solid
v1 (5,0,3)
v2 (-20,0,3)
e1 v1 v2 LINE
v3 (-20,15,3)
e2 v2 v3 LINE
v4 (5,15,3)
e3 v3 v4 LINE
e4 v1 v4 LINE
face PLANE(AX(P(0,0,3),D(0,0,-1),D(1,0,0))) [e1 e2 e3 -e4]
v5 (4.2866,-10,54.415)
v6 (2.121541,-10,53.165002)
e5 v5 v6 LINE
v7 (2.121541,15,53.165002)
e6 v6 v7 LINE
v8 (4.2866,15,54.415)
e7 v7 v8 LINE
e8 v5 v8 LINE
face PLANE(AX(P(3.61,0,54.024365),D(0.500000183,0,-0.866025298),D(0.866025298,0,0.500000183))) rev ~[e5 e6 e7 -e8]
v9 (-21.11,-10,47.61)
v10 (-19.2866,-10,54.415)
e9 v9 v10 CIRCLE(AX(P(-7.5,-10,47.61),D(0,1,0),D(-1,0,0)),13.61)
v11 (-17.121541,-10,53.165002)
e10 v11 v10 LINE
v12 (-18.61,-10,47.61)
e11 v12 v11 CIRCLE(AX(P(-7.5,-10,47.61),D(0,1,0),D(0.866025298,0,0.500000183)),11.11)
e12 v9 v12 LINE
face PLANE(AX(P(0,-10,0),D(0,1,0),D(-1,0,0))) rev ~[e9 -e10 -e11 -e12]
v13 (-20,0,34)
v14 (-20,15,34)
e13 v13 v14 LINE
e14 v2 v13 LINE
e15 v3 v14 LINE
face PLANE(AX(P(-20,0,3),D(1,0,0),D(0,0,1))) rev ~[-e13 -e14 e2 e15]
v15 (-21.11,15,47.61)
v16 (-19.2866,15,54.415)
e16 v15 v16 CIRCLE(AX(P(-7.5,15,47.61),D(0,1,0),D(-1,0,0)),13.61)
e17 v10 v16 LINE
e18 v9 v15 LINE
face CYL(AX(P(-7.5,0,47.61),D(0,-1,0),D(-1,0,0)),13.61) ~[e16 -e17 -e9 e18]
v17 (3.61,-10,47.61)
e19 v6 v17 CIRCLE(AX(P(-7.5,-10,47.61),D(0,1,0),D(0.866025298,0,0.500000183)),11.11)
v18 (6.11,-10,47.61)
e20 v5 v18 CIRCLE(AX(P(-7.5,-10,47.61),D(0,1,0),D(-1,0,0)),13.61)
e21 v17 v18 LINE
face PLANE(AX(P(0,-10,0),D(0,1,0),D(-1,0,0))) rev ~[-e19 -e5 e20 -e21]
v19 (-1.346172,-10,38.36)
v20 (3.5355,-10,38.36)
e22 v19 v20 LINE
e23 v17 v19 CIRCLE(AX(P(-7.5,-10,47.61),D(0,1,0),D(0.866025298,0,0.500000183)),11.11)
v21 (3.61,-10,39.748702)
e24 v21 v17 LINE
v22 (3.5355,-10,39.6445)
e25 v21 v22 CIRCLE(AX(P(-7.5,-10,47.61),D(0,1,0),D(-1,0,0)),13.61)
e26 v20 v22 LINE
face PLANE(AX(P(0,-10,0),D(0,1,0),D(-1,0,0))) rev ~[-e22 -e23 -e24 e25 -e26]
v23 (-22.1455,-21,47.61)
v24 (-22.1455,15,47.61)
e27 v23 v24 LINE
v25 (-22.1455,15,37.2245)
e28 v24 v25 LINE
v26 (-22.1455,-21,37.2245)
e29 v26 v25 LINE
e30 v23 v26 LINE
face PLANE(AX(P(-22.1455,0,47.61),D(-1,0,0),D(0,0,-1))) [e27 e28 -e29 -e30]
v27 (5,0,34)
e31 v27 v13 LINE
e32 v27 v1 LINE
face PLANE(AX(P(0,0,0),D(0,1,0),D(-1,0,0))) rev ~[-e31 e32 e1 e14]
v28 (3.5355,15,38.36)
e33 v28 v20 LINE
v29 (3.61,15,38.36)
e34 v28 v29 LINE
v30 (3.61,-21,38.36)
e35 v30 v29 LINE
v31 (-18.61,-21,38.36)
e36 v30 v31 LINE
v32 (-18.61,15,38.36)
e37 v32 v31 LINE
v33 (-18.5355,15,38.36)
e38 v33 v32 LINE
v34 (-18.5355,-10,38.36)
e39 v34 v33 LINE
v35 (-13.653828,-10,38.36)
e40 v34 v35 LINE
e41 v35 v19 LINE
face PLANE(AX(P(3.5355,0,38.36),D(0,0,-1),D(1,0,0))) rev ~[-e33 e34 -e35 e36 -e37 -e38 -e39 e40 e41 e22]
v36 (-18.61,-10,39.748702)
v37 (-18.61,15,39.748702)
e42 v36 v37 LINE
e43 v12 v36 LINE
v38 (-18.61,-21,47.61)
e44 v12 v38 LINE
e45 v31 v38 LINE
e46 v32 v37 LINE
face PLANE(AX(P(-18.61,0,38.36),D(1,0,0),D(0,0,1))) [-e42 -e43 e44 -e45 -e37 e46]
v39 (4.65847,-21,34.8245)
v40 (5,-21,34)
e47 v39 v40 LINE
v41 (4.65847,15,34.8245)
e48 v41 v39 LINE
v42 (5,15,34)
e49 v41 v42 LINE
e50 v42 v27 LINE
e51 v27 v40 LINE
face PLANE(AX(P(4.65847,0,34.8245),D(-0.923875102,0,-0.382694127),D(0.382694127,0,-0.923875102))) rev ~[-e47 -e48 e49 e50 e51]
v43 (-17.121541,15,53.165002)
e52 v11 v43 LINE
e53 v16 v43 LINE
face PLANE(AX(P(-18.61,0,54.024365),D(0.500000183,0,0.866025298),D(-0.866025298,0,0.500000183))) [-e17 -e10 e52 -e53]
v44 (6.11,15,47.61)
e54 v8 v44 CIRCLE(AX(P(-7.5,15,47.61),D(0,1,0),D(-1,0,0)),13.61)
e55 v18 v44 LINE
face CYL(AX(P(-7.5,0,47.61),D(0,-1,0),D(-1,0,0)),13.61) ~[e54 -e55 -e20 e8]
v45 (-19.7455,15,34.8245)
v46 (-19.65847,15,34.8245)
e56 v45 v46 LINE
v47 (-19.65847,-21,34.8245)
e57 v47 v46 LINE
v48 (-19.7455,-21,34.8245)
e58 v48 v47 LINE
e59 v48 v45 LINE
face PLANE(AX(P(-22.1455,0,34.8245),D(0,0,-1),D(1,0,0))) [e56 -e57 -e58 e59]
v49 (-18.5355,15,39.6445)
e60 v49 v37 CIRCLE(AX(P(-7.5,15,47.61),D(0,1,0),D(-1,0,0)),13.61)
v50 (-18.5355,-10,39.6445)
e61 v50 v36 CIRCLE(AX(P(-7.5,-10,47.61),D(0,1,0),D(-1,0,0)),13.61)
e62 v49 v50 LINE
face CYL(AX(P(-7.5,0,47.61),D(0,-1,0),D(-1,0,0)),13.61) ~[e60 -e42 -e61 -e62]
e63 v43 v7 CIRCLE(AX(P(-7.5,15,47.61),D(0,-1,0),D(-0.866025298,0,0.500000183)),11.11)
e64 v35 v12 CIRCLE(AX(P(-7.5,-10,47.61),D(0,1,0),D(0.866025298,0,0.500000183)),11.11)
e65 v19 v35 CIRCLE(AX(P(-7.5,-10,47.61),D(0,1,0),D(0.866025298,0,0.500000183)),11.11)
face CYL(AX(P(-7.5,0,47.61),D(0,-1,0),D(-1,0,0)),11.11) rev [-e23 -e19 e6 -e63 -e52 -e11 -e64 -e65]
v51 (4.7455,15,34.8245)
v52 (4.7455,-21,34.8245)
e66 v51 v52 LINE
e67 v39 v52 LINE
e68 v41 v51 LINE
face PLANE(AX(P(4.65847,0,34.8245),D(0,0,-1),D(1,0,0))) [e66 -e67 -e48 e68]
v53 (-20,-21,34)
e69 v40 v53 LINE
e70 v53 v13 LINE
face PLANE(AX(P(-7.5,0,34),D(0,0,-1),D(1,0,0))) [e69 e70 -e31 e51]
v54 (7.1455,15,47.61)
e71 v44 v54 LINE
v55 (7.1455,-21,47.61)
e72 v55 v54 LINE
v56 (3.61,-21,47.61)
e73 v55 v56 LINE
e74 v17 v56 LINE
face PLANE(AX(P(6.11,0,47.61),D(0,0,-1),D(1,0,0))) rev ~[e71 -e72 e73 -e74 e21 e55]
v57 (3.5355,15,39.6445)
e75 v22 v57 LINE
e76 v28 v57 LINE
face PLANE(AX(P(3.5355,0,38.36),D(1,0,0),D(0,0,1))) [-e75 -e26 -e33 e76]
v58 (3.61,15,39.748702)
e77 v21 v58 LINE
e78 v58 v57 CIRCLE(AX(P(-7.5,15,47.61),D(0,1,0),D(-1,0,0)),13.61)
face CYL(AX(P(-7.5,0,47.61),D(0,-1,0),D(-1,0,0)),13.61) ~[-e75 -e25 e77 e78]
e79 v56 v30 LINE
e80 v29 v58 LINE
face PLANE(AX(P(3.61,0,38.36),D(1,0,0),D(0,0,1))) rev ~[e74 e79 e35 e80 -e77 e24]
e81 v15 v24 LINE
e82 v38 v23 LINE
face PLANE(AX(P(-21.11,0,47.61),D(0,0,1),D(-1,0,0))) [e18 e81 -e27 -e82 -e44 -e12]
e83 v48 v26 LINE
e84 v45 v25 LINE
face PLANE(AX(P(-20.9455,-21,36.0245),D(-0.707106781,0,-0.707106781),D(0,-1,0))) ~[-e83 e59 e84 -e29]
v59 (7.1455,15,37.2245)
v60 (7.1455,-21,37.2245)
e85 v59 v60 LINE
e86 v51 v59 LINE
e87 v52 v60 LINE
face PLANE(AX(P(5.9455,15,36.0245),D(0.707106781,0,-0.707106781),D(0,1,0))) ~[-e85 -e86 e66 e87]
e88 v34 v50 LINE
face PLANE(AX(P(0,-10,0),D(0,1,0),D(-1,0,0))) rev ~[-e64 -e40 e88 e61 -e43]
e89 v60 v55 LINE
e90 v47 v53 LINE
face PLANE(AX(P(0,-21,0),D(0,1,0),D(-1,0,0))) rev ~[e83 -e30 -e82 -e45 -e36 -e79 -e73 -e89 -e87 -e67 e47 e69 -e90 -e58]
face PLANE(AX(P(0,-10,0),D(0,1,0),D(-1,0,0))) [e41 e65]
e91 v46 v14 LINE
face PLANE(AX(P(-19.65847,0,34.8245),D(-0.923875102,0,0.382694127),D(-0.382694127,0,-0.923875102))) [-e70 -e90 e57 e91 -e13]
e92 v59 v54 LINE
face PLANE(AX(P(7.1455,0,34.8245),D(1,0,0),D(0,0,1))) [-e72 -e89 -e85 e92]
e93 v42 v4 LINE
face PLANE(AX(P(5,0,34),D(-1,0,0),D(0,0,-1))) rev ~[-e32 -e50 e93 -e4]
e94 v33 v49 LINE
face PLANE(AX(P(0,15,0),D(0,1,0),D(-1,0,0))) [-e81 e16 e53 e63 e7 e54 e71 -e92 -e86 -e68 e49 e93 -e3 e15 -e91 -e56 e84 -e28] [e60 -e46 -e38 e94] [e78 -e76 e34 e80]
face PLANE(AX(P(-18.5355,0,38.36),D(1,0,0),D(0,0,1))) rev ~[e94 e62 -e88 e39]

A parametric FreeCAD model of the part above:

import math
import FreeCAD as App
import Part
import Sketcher
from FreeCAD import Vector
Q = App.Units.Quantity


def edges_at(feature, points):
    """Names of the edges that pass closest to the given points."""
    edges = feature.Shape.Edges
    near = lambda p: min(range(len(edges)), key=lambda i: edges[i].distToShape(Part.Vertex(*p))[0])
    return sorted({f"Edge{near(p) + 1}" for p in points})

doc = App.newDocument("Part")
body = doc.addObject("PartDesign::Body", "Body")

sketch1 = body.newObject("Sketcher::SketchObject", "Sketch")
sketch1.AttachmentSupport = (doc.getObject("XZ_Plane"), [""])
sketch1.MapMode = "FlatFace"
sketch1.addGeometry(Part.LineSegment(Vector(-20, 34, 0), Vector(-19.66, 34.82, 0)), False)
sketch1.addGeometry(Part.LineSegment(Vector(-19.66, 34.82, 0), Vector(-22.15, 34.82, 0)), False)
sketch1.addGeometry(Part.LineSegment(Vector(-22.15, 34.82, 0), Vector(-22.15, 47.61, 0)), False)
sketch1.addGeometry(Part.LineSegment(Vector(-22.15, 47.61, 0), Vector(-21.11, 47.61, 0)), False)
sketch1.addGeometry(Part.ArcOfCircle(Part.Circle(Vector(-7.5, 47.61, 0), Vector(0, 0, 1), 13.61), math.radians(150), math.radians(180)), False)
sketch1.addGeometry(Part.LineSegment(Vector(-19.29, 54.41, 0), Vector(-17.12, 53.17, 0)), False)
sketch1.addGeometry(Part.ArcOfCircle(Part.Circle(Vector(-7.5, 47.61, 0), Vector(0, 0, 1), 11.11), math.radians(150), math.radians(390)), False)
sketch1.addGeometry(Part.LineSegment(Vector(2.12, 53.17, 0), Vector(4.29, 54.41, 0)), False)
sketch1.addGeometry(Part.ArcOfCircle(Part.Circle(Vector(-7.5, 47.61, 0), Vector(0, 0, 1), 13.61), math.radians(0), math.radians(30)), False)
sketch1.addGeometry(Part.LineSegment(Vector(6.11, 47.61, 0), Vector(7.15, 47.61, 0)), False)
sketch1.addGeometry(Part.LineSegment(Vector(7.15, 47.61, 0), Vector(7.15, 34.82, 0)), False)
sketch1.addGeometry(Part.LineSegment(Vector(7.15, 34.82, 0), Vector(4.66, 34.82, 0)), False)
sketch1.addGeometry(Part.LineSegment(Vector(4.66, 34.82, 0), Vector(5, 34, 0)), False)
sketch1.addGeometry(Part.LineSegment(Vector(5, 34, 0), Vector(-20, 34, 0)), False)
sketch1.addGeometry(Part.LineSegment(Vector(3.54, 38.36, 0), Vector(3.61, 38.36, 0)), False)
sketch1.addGeometry(Part.LineSegment(Vector(3.61, 38.36, 0), Vector(3.61, 39.75, 0)), False)
sketch1.addGeometry(Part.ArcOfCircle(Part.Circle(Vector(-7.5, 47.61, 0), Vector(0, 0, 1), 13.61), math.radians(-35.82), math.radians(-35.28)), False)
sketch1.addGeometry(Part.LineSegment(Vector(3.54, 39.64, 0), Vector(3.54, 38.36, 0)), False)
sketch1.addGeometry(Part.ArcOfCircle(Part.Circle(Vector(-7.5, 47.61, 0), Vector(0, 0, 1), 13.61), math.radians(-144.72), math.radians(-144.18)), False)
sketch1.addGeometry(Part.LineSegment(Vector(-18.61, 39.75, 0), Vector(-18.61, 38.36, 0)), False)
sketch1.addGeometry(Part.LineSegment(Vector(-18.61, 38.36, 0), Vector(-18.54, 38.36, 0)), False)
sketch1.addGeometry(Part.LineSegment(Vector(-18.54, 38.36, 0), Vector(-18.54, 39.64, 0)), False)
sketch1.addConstraint(Sketcher.Constraint("Coincident", 0, 2, 1, 1))
sketch1.addConstraint(Sketcher.Constraint("Coincident", 1, 2, 2, 1))
sketch1.addConstraint(Sketcher.Constraint("Coincident", 2, 2, 3, 1))
sketch1.addConstraint(Sketcher.Constraint("Coincident", 3, 2, 4, 2))
sketch1.addConstraint(Sketcher.Constraint("Coincident", 4, 1, 5, 1))
sketch1.addConstraint(Sketcher.Constraint("Coincident", 5, 2, 6, 1))
sketch1.addConstraint(Sketcher.Constraint("Coincident", 6, 2, 7, 1))
sketch1.addConstraint(Sketcher.Constraint("Coincident", 7, 2, 8, 2))
sketch1.addConstraint(Sketcher.Constraint("Coincident", 8, 1, 9, 1))
sketch1.addConstraint(Sketcher.Constraint("Coincident", 9, 2, 10, 1))
sketch1.addConstraint(Sketcher.Constraint("Coincident", 10, 2, 11, 1))
sketch1.addConstraint(Sketcher.Constraint("Coincident", 11, 2, 12, 1))
sketch1.addConstraint(Sketcher.Constraint("Coincident", 12, 2, 13, 1))
sketch1.addConstraint(Sketcher.Constraint("Coincident", 13, 2, 0, 1))
sketch1.addConstraint(Sketcher.Constraint("Coincident", 14, 2, 15, 1))
sketch1.addConstraint(Sketcher.Constraint("Coincident", 15, 2, 16, 2))
sketch1.addConstraint(Sketcher.Constraint("Coincident", 16, 1, 17, 1))
sketch1.addConstraint(Sketcher.Constraint("Coincident", 17, 2, 14, 1))
sketch1.addConstraint(Sketcher.Constraint("Coincident", 18, 1, 19, 1))
sketch1.addConstraint(Sketcher.Constraint("Coincident", 19, 2, 20, 1))
sketch1.addConstraint(Sketcher.Constraint("Coincident", 20, 2, 21, 1))
sketch1.addConstraint(Sketcher.Constraint("Coincident", 21, 2, 18, 2))
sketch1.addConstraint(Sketcher.Constraint("Horizontal", 1))
sketch1.addConstraint(Sketcher.Constraint("Vertical", 2))
sketch1.addConstraint(Sketcher.Constraint("Horizontal", 3))
sketch1.addConstraint(Sketcher.Constraint("Horizontal", 9))
sketch1.addConstraint(Sketcher.Constraint("Vertical", 10))
sketch1.addConstraint(Sketcher.Constraint("Horizontal", 11))
sketch1.addConstraint(Sketcher.Constraint("Horizontal", 13))
sketch1.addConstraint(Sketcher.Constraint("Horizontal", 14))
sketch1.addConstraint(Sketcher.Constraint("Vertical", 15))
sketch1.addConstraint(Sketcher.Constraint("Vertical", 17))
sketch1.addConstraint(Sketcher.Constraint("Vertical", 19))
sketch1.addConstraint(Sketcher.Constraint("Horizontal", 20))
sketch1.addConstraint(Sketcher.Constraint("Vertical", 21))
sketch1.addConstraint(Sketcher.Constraint("Coincident", 6, 3, 4, 3))
sketch1.addConstraint(Sketcher.Constraint("Coincident", 8, 3, 4, 3))
sketch1.addConstraint(Sketcher.Constraint("Coincident", 16, 3, 4, 3))
sketch1.addConstraint(Sketcher.Constraint("Coincident", 18, 3, 4, 3))
sketch1.addConstraint(Sketcher.Constraint("Equal", 4, 8))
sketch1.addConstraint(Sketcher.Constraint("Equal", 8, 16))
sketch1.addConstraint(Sketcher.Constraint("Equal", 16, 18))
sketch1.addConstraint(Sketcher.Constraint("Horizontal", 18, 3, 2, 2))
sketch1.addConstraint(Sketcher.Constraint("Horizontal", 5, 2, 6, 2))
sketch1.addConstraint(Sketcher.Constraint("Horizontal", 4, 1, 7, 2))
sketch1.addConstraint(Sketcher.Constraint("Horizontal", 3, 2, 8, 1))
sketch1.addConstraint(Sketcher.Constraint("Horizontal", 1, 2, 10, 2))
sketch1.addConstraint(Sketcher.Constraint("Horizontal", 15, 2, 18, 1))
sketch1.addConstraint(Sketcher.Constraint("Horizontal", 17, 2, 19, 2))
sketch1.addConstraint(Sketcher.Constraint("Horizontal", 16, 1, 21, 2))
sketch1.addConstraint(Sketcher.Constraint("Equal", 3, 9))
sketch1.addConstraint(Sketcher.Constraint("Equal", 1, 11))
sketch1.addConstraint(Sketcher.Constraint("Equal", 0, 12))
sketch1.addConstraint(Sketcher.Constraint("Angle", 5, Q("-30 deg")))
sketch1.addConstraint(Sketcher.Constraint("Radius", 6, Q("11.11 mm")))
sketch1.addConstraint(Sketcher.Constraint("DistanceX", -1, 1, 12, 2, Q("5 mm")))
sketch1.addConstraint(Sketcher.Constraint("DistanceY", -1, 1, 12, 2, Q("34 mm")))
sketch1.addConstraint(Sketcher.Constraint("Distance", 5, Q("2.5 mm")))
sketch1.addConstraint(Sketcher.Constraint("DistanceX", 4, 3, 12, 2, Q("12.5 mm")))
sketch1.addConstraint(Sketcher.Constraint("DistanceX", 14, 2, 8, 1, Q("2.5 mm")))
sketch1.addConstraint(Sketcher.Constraint("DistanceY", 14, 2, 8, 1, Q("9.25 mm")))
sketch1.addConstraint(Sketcher.Constraint("Angle", 0, Q("67.4993 deg")))
sketch1.addConstraint(Sketcher.Constraint("DistanceX", 1, 2, 1, 1, Q("2.487 mm")))
sketch1.addConstraint(Sketcher.Constraint("DistanceY", -1, 1, 4, 3, Q("47.61 mm")))
sketch1.addConstraint(Sketcher.Constraint("DistanceY", 11, 2, 16, 1, Q("4.82 mm")))
sketch1.addConstraint(Sketcher.Constraint("DistanceX", 16, 1, 10, 2, Q("3.61 mm")))
sketch1.addConstraint(Sketcher.Constraint("DistanceY", -1, 1, 4, 1, Q("54.415 mm")))
pad1 = body.newObject("PartDesign::Pad", "Pad")
pad1.Profile = sketch1
pad1.Type = "TwoLengths"
pad1.Length = 15
pad1.Length2 = 10
pad1.Reversed = True

sketch2 = body.newObject("Sketcher::SketchObject", "Sketch001")
sketch2.AttachmentSupport = (doc.getObject("XZ_Plane"), [""])
sketch2.MapMode = "FlatFace"
sketch2.addGeometry(Part.LineSegment(Vector(5, 3, 0), Vector(-20, 3, 0)), False)
sketch2.addGeometry(Part.LineSegment(Vector(-20, 3, 0), Vector(-20, 34, 0)), False)
sketch2.addGeometry(Part.LineSegment(Vector(-20, 34, 0), Vector(5, 34, 0)), False)
sketch2.addGeometry(Part.LineSegment(Vector(5, 34, 0), Vector(5, 3, 0)), False)
sketch2.addConstraint(Sketcher.Constraint("Coincident", 0, 2, 1, 1))
sketch2.addConstraint(Sketcher.Constraint("Coincident", 1, 2, 2, 1))
sketch2.addConstraint(Sketcher.Constraint("Coincident", 2, 2, 3, 1))
sketch2.addConstraint(Sketcher.Constraint("Coincident", 3, 2, 0, 1))
sketch2.addConstraint(Sketcher.Constraint("Horizontal", 0))
sketch2.addConstraint(Sketcher.Constraint("Vertical", 1))
sketch2.addConstraint(Sketcher.Constraint("Horizontal", 2))
sketch2.addConstraint(Sketcher.Constraint("Vertical", 3))
sketch2.addConstraint(Sketcher.Constraint("DistanceY", -1, 1, 0, 2, Q("3 mm")))
sketch2.addConstraint(Sketcher.Constraint("DistanceY", -1, 1, 1, 2, Q("34 mm")))
sketch2.addConstraint(Sketcher.Constraint("DistanceX", -1, 1, 2, 2, Q("5 mm")))
sketch2.addConstraint(Sketcher.Constraint("DistanceX", 0, 2, 0, 1, Q("25 mm")))
pad2 = body.newObject("PartDesign::Pad", "Pad001")
pad2.Profile = sketch2
pad2.Length = 15
pad2.Reversed = True

sketch3 = body.newObject("Sketcher::SketchObject", "Sketch002")
sketch3.AttachmentSupport = (doc.getObject("XZ_Plane"), [""])
sketch3.MapMode = "FlatFace"
sketch3.AttachmentOffset = App.Placement(Vector(0, 0, 10), App.Rotation())
sketch3.addGeometry(Part.LineSegment(Vector(-20, 34, 0), Vector(-19.7, 34.8, 0)), False)
sketch3.addGeometry(Part.LineSegment(Vector(-19.7, 34.8, 0), Vector(-22.1, 34.8, 0)), False)
sketch3.addGeometry(Part.LineSegment(Vector(-22.1, 34.8, 0), Vector(-22.1, 47.6, 0)), False)
sketch3.addGeometry(Part.LineSegment(Vector(-22.1, 47.6, 0), Vector(-18.6, 47.6, 0)), False)
sketch3.addGeometry(Part.LineSegment(Vector(-18.6, 47.6, 0), Vector(-18.6, 38.4, 0)), False)
sketch3.addGeometry(Part.LineSegment(Vector(-18.6, 38.4, 0), Vector(3.6, 38.4, 0)), False)
sketch3.addGeometry(Part.LineSegment(Vector(3.6, 38.4, 0), Vector(3.6, 47.6, 0)), False)
sketch3.addGeometry(Part.LineSegment(Vector(3.6, 47.6, 0), Vector(7.1, 47.6, 0)), False)
sketch3.addGeometry(Part.LineSegment(Vector(7.1, 47.6, 0), Vector(7.1, 34.8, 0)), False)
sketch3.addGeometry(Part.LineSegment(Vector(7.1, 34.8, 0), Vector(4.7, 34.8, 0)), False)
sketch3.addGeometry(Part.LineSegment(Vector(4.7, 34.8, 0), Vector(5, 34, 0)), False)
sketch3.addGeometry(Part.LineSegment(Vector(5, 34, 0), Vector(-20, 34, 0)), False)
sketch3.addConstraint(Sketcher.Constraint("Coincident", 0, 2, 1, 1))
sketch3.addConstraint(Sketcher.Constraint("Coincident", 1, 2, 2, 1))
sketch3.addConstraint(Sketcher.Constraint("Coincident", 2, 2, 3, 1))
sketch3.addConstraint(Sketcher.Constraint("Coincident", 3, 2, 4, 1))
sketch3.addConstraint(Sketcher.Constraint("Coincident", 4, 2, 5, 1))
sketch3.addConstraint(Sketcher.Constraint("Coincident", 5, 2, 6, 1))
sketch3.addConstraint(Sketcher.Constraint("Coincident", 6, 2, 7, 1))
sketch3.addConstraint(Sketcher.Constraint("Coincident", 7, 2, 8, 1))
sketch3.addConstraint(Sketcher.Constraint("Coincident", 8, 2, 9, 1))
sketch3.addConstraint(Sketcher.Constraint("Coincident", 9, 2, 10, 1))
sketch3.addConstraint(Sketcher.Constraint("Coincident", 10, 2, 11, 1))
sketch3.addConstraint(Sketcher.Constraint("Coincident", 11, 2, 0, 1))
sketch3.addConstraint(Sketcher.Constraint("Horizontal", 1))
sketch3.addConstraint(Sketcher.Constraint("Vertical", 2))
sketch3.addConstraint(Sketcher.Constraint("Horizontal", 3))
sketch3.addConstraint(Sketcher.Constraint("Vertical", 4))
sketch3.addConstraint(Sketcher.Constraint("Horizontal", 5))
sketch3.addConstraint(Sketcher.Constraint("Vertical", 6))
sketch3.addConstraint(Sketcher.Constraint("Horizontal", 7))
sketch3.addConstraint(Sketcher.Constraint("Vertical", 8))
sketch3.addConstraint(Sketcher.Constraint("Horizontal", 9))
sketch3.addConstraint(Sketcher.Constraint("Horizontal", 11))
sketch3.addConstraint(Sketcher.Constraint("Horizontal", 3, 2, 6, 2))
sketch3.addConstraint(Sketcher.Constraint("Horizontal", 1, 2, 8, 2))
sketch3.addConstraint(Sketcher.Constraint("Equal", 3, 7))
sketch3.addConstraint(Sketcher.Constraint("Equal", 1, 9))
sketch3.addConstraint(Sketcher.Constraint("Equal", 0, 10))
sketch3.addConstraint(Sketcher.Constraint("DistanceX", -1, 1, 10, 2, Q("5 mm")))
sketch3.addConstraint(Sketcher.Constraint("DistanceY", -1, 1, 10, 2, Q("34 mm")))
sketch3.addConstraint(Sketcher.Constraint("DistanceY", 4, 2, 4, 1, Q("9.25 mm")))
sketch3.addConstraint(Sketcher.Constraint("DistanceX", 11, 2, 11, 1, Q("25 mm")))
sketch3.addConstraint(Sketcher.Constraint("Angle", 0, Q("67.4993 deg")))
sketch3.addConstraint(Sketcher.Constraint("DistanceX", 5, 1, 5, 2, Q("22.22 mm")))
sketch3.addConstraint(Sketcher.Constraint("DistanceX", 1, 2, 1, 1, Q("2.487 mm")))
sketch3.addConstraint(Sketcher.Constraint("DistanceY", -1, 1, 2, 2, Q("47.61 mm")))
sketch3.addConstraint(Sketcher.Constraint("DistanceX", 3, 1, 3, 2, Q("3.5355 mm")))
pad3 = body.newObject("PartDesign::Pad", "Pad002")
pad3.Profile = sketch3
pad3.Length = 11
doc.recompute()

chamfer = body.newObject("PartDesign::Chamfer", "Chamfer")
chamfer.Base = (pad3, edges_at(pad3, [(7.146, -3, 34.825), (-22.145, -3, 34.825)]))
chamfer.Size = 2.4

doc.recompute()
